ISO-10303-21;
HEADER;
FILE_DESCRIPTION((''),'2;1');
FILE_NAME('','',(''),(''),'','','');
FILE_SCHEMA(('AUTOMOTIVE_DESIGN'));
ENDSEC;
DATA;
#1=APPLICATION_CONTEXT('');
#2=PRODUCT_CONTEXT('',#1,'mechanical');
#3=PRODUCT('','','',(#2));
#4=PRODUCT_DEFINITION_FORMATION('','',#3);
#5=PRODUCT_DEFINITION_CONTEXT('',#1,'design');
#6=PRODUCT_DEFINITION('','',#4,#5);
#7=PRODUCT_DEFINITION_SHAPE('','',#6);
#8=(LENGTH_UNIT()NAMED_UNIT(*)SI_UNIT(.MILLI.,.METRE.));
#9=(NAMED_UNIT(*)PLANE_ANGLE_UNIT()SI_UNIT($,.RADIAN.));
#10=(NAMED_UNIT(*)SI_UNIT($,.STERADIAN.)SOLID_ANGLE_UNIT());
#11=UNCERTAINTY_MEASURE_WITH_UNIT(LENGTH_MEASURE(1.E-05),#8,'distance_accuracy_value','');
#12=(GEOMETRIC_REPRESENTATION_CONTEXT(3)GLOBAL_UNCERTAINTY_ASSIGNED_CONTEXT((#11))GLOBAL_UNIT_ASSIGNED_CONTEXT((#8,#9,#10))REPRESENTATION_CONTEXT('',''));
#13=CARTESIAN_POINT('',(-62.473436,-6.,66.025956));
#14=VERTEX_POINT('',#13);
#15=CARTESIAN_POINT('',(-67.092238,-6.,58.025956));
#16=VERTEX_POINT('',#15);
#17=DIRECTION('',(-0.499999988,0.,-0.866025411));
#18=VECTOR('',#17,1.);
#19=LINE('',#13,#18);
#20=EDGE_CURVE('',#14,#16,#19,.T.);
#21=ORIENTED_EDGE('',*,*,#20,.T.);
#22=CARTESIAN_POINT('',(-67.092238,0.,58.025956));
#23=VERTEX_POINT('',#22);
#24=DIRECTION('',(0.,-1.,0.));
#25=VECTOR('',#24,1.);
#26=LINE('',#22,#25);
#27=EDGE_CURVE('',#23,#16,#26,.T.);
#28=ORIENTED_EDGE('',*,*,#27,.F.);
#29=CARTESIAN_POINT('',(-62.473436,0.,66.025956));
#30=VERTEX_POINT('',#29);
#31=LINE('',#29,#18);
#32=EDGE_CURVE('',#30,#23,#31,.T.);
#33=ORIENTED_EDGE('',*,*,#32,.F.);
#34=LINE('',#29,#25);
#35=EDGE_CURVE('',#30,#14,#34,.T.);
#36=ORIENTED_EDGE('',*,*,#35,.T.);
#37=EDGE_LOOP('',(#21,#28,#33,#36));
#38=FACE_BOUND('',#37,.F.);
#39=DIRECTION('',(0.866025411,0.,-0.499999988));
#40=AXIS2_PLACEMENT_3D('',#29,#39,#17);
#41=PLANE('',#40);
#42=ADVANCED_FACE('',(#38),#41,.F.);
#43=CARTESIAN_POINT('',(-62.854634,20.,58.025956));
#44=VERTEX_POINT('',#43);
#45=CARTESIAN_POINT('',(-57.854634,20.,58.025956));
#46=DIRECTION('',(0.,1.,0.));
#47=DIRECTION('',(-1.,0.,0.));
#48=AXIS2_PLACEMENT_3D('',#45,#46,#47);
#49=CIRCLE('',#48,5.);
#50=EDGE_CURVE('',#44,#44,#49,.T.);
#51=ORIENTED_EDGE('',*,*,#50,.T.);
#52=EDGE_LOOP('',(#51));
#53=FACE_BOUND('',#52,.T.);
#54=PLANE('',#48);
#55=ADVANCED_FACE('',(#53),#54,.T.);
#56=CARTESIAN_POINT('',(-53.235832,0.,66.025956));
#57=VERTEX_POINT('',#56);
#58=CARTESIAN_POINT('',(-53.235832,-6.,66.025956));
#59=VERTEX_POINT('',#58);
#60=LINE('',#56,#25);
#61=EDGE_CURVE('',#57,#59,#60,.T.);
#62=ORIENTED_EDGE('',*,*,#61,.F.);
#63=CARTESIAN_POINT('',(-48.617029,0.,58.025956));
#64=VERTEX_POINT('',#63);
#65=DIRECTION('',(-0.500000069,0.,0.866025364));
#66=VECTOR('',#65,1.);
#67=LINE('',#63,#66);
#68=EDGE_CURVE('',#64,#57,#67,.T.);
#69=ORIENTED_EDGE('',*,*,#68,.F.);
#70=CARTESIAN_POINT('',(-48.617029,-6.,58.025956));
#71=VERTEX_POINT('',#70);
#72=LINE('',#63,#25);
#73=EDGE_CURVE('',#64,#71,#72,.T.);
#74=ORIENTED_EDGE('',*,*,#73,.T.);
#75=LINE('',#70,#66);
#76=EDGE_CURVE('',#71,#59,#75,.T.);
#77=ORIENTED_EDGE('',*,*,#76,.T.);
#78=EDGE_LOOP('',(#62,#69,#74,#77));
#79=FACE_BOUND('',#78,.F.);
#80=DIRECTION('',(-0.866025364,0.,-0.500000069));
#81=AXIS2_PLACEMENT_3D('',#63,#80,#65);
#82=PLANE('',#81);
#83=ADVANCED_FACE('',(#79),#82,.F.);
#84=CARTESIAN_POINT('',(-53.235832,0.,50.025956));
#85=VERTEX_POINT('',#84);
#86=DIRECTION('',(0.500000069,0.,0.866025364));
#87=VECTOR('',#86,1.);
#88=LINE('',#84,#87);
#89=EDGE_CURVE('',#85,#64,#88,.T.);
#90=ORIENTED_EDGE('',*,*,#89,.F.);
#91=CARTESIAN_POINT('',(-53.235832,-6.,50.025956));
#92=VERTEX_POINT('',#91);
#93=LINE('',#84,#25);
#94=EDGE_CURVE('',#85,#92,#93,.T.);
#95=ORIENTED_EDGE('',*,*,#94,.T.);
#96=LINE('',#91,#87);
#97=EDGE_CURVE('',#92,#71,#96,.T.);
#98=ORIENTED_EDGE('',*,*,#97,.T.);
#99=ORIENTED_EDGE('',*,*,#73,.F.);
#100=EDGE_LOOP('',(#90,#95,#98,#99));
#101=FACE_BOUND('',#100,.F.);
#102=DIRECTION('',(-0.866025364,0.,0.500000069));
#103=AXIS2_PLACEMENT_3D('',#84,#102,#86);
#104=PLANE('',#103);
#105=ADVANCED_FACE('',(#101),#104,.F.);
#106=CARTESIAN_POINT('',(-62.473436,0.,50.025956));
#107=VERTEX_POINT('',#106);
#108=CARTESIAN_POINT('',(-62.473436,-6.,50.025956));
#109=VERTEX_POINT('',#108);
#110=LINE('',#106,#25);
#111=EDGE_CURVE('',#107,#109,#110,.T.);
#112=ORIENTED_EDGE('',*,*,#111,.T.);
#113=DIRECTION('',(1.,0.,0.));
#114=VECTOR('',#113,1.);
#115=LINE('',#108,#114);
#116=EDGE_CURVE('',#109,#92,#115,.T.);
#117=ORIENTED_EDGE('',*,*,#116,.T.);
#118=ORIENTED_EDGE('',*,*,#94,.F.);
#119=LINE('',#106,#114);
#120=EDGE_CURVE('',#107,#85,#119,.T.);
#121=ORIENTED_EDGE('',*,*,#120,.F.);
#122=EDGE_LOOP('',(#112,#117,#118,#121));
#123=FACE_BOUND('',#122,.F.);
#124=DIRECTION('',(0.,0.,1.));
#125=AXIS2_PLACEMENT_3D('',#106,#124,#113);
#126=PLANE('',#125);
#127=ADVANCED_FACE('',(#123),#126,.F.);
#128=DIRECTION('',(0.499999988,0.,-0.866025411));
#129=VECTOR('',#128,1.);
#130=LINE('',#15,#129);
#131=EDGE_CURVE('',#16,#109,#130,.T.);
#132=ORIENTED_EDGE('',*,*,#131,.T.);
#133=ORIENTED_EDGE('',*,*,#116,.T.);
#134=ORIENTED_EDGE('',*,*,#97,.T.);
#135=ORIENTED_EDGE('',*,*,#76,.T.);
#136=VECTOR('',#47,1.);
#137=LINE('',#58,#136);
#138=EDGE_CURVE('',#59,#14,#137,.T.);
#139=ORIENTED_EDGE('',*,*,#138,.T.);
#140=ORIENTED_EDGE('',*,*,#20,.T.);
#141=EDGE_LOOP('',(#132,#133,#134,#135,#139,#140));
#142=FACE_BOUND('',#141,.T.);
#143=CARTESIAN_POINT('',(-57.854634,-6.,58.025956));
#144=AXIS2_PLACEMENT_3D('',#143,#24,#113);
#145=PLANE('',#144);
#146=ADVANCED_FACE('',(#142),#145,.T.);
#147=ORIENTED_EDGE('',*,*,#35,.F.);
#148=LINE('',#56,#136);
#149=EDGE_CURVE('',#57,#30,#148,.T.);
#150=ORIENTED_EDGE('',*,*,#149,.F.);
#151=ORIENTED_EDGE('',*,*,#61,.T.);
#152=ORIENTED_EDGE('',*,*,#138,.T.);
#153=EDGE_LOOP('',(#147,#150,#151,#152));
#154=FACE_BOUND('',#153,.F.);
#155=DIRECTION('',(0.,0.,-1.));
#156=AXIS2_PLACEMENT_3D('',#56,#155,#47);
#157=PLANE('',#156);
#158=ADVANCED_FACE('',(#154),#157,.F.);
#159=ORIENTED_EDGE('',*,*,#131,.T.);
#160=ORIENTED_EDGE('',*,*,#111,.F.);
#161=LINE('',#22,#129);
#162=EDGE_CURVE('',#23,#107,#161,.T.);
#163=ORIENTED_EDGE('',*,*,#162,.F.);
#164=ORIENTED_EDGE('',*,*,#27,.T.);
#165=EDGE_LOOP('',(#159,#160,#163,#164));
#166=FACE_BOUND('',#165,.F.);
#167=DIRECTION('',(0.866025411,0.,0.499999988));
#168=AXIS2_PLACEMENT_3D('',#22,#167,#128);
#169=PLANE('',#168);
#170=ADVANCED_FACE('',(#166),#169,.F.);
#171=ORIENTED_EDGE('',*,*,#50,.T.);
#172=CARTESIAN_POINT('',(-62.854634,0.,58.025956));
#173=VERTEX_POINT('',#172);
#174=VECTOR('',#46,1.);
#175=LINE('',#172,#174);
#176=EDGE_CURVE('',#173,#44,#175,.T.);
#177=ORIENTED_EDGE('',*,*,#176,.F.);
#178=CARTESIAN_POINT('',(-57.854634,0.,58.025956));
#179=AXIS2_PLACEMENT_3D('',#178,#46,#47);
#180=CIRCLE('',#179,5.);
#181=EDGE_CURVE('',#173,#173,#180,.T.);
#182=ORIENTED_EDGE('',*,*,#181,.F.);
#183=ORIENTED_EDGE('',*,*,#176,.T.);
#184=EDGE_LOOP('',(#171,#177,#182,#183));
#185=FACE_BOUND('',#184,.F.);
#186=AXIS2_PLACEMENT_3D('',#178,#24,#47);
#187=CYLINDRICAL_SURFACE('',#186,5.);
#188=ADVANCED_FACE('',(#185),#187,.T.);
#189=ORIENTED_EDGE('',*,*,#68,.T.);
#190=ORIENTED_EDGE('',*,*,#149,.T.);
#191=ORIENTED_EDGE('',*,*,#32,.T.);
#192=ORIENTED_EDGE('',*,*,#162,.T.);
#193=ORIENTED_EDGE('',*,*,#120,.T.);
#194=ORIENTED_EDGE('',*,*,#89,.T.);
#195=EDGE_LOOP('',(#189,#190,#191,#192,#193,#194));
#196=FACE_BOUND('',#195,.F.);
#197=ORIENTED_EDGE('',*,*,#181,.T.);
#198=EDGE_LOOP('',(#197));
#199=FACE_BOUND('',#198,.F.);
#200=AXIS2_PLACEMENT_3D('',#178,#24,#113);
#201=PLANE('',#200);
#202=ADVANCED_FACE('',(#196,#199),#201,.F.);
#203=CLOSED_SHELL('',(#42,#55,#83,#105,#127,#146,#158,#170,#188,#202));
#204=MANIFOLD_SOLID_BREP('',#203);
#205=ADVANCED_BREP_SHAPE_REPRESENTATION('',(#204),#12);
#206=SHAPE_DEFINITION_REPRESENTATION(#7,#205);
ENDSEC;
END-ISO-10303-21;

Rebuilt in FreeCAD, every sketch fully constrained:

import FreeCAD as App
import Part
import Sketcher
Q = App.Units.Quantity


def add_polygon(sketch, points):
    """Adds a closed chain of lines whose ends are joined by coincident constraints."""
    first, n = sketch.GeometryCount, len(points)
    for a, b in zip(points, points[1:] + points[:1]):
        sketch.addGeometry(Part.LineSegment(App.Vector(*a, 0), App.Vector(*b, 0)), False)
    for i in range(n):
        sketch.addConstraint(Sketcher.Constraint("Coincident", first + i, 2, first + (i + 1) % n, 1))

doc = App.newDocument("Part")
body = doc.addObject("PartDesign::Body", "Body")

# Sketch on XZ plane
sketch1 = body.newObject("Sketcher::SketchObject", "Sketch")
sketch1.AttachmentSupport = (doc.getObject("XZ_Plane"), [""])
sketch1.MapMode = "FlatFace"
add_polygon(sketch1, [(-53, 66), (-62, 66), (-67, 58), (-62, 50), (-53, 50), (-49, 58)])  # lines 0-5
sketch1.addConstraint([
    Sketcher.Constraint("Horizontal", 0),
    Sketcher.Constraint("Horizontal", 3),
    Sketcher.Constraint("Parallel", 1, 4),
    Sketcher.Constraint("Parallel", 2, 5),
    Sketcher.Constraint("Horizontal", 1, 2, 4, 2),
    Sketcher.Constraint("Vertical", 0, 2, 2, 2),
    Sketcher.Constraint("Vertical", 3, 2, 5, 2),
    Sketcher.Constraint("Angle", 1, Q("-119.999999 deg")),
    Sketcher.Constraint("DistanceY", 1, 2, 0, 2, Q("8 mm")),
    Sketcher.Constraint("DistanceX", 0, 2, 0, 1, Q("9.237604 mm")),
    Sketcher.Constraint("DistanceX", 4, 2, -1, 1, Q("48.617029 mm")),
    Sketcher.Constraint("DistanceY", -1, 1, 0, 2, Q("66.025956 mm")),
])
pad1 = body.newObject("PartDesign::Pad", "Pad")
pad1.Profile = sketch1
pad1.Length = 6

# Sketch on XZ plane
sketch2 = body.newObject("Sketcher::SketchObject", "Sketch001")
sketch2.AttachmentSupport = (doc.getObject("XZ_Plane"), [""])
sketch2.MapMode = "FlatFace"
sketch2.addGeometry(Part.Circle(App.Vector(-58, 58, 0), App.Vector(0, 0, 1), 5), False)
sketch2.addConstraint([
    Sketcher.Constraint("Diameter", 0, Q("10 mm")),
    Sketcher.Constraint("DistanceX", 0, 3, -1, 1, Q("57.854634 mm")),
    Sketcher.Constraint("DistanceY", -1, 1, 0, 3, Q("58.025956 mm")),
])
pad2 = body.newObject("PartDesign::Pad", "Pad001")
pad2.Profile = sketch2
pad2.Length = 20
pad2.Reversed = True

doc.recompute()
